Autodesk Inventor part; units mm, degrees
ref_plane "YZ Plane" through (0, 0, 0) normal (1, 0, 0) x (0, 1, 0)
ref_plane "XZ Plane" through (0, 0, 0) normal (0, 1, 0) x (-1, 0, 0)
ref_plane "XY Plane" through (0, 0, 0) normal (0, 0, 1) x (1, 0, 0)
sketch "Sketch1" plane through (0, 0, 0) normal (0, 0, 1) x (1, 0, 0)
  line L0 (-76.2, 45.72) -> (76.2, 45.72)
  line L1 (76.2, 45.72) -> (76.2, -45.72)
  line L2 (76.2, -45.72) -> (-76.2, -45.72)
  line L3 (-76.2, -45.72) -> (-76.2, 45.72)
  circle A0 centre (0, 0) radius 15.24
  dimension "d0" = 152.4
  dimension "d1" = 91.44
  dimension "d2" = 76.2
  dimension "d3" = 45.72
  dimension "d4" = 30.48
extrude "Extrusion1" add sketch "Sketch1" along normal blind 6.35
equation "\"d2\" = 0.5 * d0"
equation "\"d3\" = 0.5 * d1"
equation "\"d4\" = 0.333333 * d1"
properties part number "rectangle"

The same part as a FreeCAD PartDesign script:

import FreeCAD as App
import Part
import Sketcher
Q = App.Units.Quantity

doc = App.newDocument("Part")
body = doc.addObject("PartDesign::Body", "Body")

# Sketch on XY plane
sketch1 = body.newObject("Sketcher::SketchObject", "Sketch")
sketch1.AttachmentSupport = (doc.getObject("XY_Plane"), [""])
sketch1.MapMode = "FlatFace"
sketch1.addGeometry([
    Part.LineSegment(App.Vector(76, 46, 0), App.Vector(-76, 46, 0)),  # 0
    Part.LineSegment(App.Vector(-76, 46, 0), App.Vector(-76, -46, 0)),  # 1
    Part.LineSegment(App.Vector(-76, -46, 0), App.Vector(76, -46, 0)),  # 2
    Part.LineSegment(App.Vector(76, -46, 0), App.Vector(76, 46, 0)),  # 3
    Part.Circle(App.Vector(0, 0, 0), App.Vector(0, 0, 1), 15),  # 4
], False)
sketch1.addConstraint([
    Sketcher.Constraint("Coincident", 0, 2, 1, 1),
    Sketcher.Constraint("Coincident", 1, 2, 2, 1),
    Sketcher.Constraint("Coincident", 2, 2, 3, 1),
    Sketcher.Constraint("Coincident", 3, 2, 0, 1),
    Sketcher.Constraint("Horizontal", 0),
    Sketcher.Constraint("Vertical", 1),
    Sketcher.Constraint("Horizontal", 2),
    Sketcher.Constraint("Vertical", 3),
    Sketcher.Constraint("Coincident", 4, 3, -1, 1),
    Sketcher.Constraint("Symmetric", 0, 2, 2, 2, -1, 1),
    Sketcher.Constraint("Diameter", 4, Q("1.2 in")),
    Sketcher.Constraint("DistanceX", 0, 2, 0, 1, Q("6 in")),
    Sketcher.Constraint("DistanceY", 1, 2, 1, 1, Q("3.6 in")),
])
pad1 = body.newObject("PartDesign::Pad", "Pad")
pad1.Profile = sketch1
pad1.Length = Q("0.25 in")

doc.recompute()
